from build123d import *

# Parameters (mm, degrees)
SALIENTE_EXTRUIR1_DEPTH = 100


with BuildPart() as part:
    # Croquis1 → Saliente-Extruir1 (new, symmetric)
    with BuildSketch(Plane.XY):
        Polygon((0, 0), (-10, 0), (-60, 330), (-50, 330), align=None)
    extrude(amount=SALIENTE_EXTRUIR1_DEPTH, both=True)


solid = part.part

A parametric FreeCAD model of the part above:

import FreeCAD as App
import Part
import Sketcher


def add_polygon(sketch, points):
    """Adds a closed chain of lines whose ends are joined by coincident constraints."""
    first, n = sketch.GeometryCount, len(points)
    for a, b in zip(points, points[1:] + points[:1]):
        sketch.addGeometry(Part.LineSegment(App.Vector(*a, 0), App.Vector(*b, 0)), False)
    for i in range(n):
        sketch.addConstraint(Sketcher.Constraint("Coincident", first + i, 2, first + (i + 1) % n, 1))

doc = App.newDocument("Part")
body = doc.addObject("PartDesign::Body", "Body")

sketch1 = body.newObject("Sketcher::SketchObject", "Sketch")
sketch1.AttachmentSupport = (doc.getObject("XY_Plane"), [""])
sketch1.MapMode = "FlatFace"
add_polygon(sketch1, [(-10, 0), (0, 0), (-50, 330), (-60, 330)])
sketch1.addConstraint(Sketcher.Constraint("Horizontal", 0))
sketch1.addConstraint(Sketcher.Constraint("Horizontal", 2))
sketch1.addConstraint(Sketcher.Constraint("Coincident", 0, 2, -1, 1))
sketch1.addConstraint(Sketcher.Constraint("Parallel", 1, 3))
sketch1.addConstraint(Sketcher.Constraint("DistanceX", 0, 1, 0, 2, 10.0))
sketch1.addConstraint(Sketcher.Constraint("DistanceX", 1, 2, -1, 1, 50.0))
sketch1.addConstraint(Sketcher.Constraint("DistanceY", -1, 1, 1, 2, 330.0))
pad1 = body.newObject("PartDesign::Pad", "Pad")
pad1.Profile = sketch1
pad1.Length = 200
pad1.Midplane = True

doc.recompute()
